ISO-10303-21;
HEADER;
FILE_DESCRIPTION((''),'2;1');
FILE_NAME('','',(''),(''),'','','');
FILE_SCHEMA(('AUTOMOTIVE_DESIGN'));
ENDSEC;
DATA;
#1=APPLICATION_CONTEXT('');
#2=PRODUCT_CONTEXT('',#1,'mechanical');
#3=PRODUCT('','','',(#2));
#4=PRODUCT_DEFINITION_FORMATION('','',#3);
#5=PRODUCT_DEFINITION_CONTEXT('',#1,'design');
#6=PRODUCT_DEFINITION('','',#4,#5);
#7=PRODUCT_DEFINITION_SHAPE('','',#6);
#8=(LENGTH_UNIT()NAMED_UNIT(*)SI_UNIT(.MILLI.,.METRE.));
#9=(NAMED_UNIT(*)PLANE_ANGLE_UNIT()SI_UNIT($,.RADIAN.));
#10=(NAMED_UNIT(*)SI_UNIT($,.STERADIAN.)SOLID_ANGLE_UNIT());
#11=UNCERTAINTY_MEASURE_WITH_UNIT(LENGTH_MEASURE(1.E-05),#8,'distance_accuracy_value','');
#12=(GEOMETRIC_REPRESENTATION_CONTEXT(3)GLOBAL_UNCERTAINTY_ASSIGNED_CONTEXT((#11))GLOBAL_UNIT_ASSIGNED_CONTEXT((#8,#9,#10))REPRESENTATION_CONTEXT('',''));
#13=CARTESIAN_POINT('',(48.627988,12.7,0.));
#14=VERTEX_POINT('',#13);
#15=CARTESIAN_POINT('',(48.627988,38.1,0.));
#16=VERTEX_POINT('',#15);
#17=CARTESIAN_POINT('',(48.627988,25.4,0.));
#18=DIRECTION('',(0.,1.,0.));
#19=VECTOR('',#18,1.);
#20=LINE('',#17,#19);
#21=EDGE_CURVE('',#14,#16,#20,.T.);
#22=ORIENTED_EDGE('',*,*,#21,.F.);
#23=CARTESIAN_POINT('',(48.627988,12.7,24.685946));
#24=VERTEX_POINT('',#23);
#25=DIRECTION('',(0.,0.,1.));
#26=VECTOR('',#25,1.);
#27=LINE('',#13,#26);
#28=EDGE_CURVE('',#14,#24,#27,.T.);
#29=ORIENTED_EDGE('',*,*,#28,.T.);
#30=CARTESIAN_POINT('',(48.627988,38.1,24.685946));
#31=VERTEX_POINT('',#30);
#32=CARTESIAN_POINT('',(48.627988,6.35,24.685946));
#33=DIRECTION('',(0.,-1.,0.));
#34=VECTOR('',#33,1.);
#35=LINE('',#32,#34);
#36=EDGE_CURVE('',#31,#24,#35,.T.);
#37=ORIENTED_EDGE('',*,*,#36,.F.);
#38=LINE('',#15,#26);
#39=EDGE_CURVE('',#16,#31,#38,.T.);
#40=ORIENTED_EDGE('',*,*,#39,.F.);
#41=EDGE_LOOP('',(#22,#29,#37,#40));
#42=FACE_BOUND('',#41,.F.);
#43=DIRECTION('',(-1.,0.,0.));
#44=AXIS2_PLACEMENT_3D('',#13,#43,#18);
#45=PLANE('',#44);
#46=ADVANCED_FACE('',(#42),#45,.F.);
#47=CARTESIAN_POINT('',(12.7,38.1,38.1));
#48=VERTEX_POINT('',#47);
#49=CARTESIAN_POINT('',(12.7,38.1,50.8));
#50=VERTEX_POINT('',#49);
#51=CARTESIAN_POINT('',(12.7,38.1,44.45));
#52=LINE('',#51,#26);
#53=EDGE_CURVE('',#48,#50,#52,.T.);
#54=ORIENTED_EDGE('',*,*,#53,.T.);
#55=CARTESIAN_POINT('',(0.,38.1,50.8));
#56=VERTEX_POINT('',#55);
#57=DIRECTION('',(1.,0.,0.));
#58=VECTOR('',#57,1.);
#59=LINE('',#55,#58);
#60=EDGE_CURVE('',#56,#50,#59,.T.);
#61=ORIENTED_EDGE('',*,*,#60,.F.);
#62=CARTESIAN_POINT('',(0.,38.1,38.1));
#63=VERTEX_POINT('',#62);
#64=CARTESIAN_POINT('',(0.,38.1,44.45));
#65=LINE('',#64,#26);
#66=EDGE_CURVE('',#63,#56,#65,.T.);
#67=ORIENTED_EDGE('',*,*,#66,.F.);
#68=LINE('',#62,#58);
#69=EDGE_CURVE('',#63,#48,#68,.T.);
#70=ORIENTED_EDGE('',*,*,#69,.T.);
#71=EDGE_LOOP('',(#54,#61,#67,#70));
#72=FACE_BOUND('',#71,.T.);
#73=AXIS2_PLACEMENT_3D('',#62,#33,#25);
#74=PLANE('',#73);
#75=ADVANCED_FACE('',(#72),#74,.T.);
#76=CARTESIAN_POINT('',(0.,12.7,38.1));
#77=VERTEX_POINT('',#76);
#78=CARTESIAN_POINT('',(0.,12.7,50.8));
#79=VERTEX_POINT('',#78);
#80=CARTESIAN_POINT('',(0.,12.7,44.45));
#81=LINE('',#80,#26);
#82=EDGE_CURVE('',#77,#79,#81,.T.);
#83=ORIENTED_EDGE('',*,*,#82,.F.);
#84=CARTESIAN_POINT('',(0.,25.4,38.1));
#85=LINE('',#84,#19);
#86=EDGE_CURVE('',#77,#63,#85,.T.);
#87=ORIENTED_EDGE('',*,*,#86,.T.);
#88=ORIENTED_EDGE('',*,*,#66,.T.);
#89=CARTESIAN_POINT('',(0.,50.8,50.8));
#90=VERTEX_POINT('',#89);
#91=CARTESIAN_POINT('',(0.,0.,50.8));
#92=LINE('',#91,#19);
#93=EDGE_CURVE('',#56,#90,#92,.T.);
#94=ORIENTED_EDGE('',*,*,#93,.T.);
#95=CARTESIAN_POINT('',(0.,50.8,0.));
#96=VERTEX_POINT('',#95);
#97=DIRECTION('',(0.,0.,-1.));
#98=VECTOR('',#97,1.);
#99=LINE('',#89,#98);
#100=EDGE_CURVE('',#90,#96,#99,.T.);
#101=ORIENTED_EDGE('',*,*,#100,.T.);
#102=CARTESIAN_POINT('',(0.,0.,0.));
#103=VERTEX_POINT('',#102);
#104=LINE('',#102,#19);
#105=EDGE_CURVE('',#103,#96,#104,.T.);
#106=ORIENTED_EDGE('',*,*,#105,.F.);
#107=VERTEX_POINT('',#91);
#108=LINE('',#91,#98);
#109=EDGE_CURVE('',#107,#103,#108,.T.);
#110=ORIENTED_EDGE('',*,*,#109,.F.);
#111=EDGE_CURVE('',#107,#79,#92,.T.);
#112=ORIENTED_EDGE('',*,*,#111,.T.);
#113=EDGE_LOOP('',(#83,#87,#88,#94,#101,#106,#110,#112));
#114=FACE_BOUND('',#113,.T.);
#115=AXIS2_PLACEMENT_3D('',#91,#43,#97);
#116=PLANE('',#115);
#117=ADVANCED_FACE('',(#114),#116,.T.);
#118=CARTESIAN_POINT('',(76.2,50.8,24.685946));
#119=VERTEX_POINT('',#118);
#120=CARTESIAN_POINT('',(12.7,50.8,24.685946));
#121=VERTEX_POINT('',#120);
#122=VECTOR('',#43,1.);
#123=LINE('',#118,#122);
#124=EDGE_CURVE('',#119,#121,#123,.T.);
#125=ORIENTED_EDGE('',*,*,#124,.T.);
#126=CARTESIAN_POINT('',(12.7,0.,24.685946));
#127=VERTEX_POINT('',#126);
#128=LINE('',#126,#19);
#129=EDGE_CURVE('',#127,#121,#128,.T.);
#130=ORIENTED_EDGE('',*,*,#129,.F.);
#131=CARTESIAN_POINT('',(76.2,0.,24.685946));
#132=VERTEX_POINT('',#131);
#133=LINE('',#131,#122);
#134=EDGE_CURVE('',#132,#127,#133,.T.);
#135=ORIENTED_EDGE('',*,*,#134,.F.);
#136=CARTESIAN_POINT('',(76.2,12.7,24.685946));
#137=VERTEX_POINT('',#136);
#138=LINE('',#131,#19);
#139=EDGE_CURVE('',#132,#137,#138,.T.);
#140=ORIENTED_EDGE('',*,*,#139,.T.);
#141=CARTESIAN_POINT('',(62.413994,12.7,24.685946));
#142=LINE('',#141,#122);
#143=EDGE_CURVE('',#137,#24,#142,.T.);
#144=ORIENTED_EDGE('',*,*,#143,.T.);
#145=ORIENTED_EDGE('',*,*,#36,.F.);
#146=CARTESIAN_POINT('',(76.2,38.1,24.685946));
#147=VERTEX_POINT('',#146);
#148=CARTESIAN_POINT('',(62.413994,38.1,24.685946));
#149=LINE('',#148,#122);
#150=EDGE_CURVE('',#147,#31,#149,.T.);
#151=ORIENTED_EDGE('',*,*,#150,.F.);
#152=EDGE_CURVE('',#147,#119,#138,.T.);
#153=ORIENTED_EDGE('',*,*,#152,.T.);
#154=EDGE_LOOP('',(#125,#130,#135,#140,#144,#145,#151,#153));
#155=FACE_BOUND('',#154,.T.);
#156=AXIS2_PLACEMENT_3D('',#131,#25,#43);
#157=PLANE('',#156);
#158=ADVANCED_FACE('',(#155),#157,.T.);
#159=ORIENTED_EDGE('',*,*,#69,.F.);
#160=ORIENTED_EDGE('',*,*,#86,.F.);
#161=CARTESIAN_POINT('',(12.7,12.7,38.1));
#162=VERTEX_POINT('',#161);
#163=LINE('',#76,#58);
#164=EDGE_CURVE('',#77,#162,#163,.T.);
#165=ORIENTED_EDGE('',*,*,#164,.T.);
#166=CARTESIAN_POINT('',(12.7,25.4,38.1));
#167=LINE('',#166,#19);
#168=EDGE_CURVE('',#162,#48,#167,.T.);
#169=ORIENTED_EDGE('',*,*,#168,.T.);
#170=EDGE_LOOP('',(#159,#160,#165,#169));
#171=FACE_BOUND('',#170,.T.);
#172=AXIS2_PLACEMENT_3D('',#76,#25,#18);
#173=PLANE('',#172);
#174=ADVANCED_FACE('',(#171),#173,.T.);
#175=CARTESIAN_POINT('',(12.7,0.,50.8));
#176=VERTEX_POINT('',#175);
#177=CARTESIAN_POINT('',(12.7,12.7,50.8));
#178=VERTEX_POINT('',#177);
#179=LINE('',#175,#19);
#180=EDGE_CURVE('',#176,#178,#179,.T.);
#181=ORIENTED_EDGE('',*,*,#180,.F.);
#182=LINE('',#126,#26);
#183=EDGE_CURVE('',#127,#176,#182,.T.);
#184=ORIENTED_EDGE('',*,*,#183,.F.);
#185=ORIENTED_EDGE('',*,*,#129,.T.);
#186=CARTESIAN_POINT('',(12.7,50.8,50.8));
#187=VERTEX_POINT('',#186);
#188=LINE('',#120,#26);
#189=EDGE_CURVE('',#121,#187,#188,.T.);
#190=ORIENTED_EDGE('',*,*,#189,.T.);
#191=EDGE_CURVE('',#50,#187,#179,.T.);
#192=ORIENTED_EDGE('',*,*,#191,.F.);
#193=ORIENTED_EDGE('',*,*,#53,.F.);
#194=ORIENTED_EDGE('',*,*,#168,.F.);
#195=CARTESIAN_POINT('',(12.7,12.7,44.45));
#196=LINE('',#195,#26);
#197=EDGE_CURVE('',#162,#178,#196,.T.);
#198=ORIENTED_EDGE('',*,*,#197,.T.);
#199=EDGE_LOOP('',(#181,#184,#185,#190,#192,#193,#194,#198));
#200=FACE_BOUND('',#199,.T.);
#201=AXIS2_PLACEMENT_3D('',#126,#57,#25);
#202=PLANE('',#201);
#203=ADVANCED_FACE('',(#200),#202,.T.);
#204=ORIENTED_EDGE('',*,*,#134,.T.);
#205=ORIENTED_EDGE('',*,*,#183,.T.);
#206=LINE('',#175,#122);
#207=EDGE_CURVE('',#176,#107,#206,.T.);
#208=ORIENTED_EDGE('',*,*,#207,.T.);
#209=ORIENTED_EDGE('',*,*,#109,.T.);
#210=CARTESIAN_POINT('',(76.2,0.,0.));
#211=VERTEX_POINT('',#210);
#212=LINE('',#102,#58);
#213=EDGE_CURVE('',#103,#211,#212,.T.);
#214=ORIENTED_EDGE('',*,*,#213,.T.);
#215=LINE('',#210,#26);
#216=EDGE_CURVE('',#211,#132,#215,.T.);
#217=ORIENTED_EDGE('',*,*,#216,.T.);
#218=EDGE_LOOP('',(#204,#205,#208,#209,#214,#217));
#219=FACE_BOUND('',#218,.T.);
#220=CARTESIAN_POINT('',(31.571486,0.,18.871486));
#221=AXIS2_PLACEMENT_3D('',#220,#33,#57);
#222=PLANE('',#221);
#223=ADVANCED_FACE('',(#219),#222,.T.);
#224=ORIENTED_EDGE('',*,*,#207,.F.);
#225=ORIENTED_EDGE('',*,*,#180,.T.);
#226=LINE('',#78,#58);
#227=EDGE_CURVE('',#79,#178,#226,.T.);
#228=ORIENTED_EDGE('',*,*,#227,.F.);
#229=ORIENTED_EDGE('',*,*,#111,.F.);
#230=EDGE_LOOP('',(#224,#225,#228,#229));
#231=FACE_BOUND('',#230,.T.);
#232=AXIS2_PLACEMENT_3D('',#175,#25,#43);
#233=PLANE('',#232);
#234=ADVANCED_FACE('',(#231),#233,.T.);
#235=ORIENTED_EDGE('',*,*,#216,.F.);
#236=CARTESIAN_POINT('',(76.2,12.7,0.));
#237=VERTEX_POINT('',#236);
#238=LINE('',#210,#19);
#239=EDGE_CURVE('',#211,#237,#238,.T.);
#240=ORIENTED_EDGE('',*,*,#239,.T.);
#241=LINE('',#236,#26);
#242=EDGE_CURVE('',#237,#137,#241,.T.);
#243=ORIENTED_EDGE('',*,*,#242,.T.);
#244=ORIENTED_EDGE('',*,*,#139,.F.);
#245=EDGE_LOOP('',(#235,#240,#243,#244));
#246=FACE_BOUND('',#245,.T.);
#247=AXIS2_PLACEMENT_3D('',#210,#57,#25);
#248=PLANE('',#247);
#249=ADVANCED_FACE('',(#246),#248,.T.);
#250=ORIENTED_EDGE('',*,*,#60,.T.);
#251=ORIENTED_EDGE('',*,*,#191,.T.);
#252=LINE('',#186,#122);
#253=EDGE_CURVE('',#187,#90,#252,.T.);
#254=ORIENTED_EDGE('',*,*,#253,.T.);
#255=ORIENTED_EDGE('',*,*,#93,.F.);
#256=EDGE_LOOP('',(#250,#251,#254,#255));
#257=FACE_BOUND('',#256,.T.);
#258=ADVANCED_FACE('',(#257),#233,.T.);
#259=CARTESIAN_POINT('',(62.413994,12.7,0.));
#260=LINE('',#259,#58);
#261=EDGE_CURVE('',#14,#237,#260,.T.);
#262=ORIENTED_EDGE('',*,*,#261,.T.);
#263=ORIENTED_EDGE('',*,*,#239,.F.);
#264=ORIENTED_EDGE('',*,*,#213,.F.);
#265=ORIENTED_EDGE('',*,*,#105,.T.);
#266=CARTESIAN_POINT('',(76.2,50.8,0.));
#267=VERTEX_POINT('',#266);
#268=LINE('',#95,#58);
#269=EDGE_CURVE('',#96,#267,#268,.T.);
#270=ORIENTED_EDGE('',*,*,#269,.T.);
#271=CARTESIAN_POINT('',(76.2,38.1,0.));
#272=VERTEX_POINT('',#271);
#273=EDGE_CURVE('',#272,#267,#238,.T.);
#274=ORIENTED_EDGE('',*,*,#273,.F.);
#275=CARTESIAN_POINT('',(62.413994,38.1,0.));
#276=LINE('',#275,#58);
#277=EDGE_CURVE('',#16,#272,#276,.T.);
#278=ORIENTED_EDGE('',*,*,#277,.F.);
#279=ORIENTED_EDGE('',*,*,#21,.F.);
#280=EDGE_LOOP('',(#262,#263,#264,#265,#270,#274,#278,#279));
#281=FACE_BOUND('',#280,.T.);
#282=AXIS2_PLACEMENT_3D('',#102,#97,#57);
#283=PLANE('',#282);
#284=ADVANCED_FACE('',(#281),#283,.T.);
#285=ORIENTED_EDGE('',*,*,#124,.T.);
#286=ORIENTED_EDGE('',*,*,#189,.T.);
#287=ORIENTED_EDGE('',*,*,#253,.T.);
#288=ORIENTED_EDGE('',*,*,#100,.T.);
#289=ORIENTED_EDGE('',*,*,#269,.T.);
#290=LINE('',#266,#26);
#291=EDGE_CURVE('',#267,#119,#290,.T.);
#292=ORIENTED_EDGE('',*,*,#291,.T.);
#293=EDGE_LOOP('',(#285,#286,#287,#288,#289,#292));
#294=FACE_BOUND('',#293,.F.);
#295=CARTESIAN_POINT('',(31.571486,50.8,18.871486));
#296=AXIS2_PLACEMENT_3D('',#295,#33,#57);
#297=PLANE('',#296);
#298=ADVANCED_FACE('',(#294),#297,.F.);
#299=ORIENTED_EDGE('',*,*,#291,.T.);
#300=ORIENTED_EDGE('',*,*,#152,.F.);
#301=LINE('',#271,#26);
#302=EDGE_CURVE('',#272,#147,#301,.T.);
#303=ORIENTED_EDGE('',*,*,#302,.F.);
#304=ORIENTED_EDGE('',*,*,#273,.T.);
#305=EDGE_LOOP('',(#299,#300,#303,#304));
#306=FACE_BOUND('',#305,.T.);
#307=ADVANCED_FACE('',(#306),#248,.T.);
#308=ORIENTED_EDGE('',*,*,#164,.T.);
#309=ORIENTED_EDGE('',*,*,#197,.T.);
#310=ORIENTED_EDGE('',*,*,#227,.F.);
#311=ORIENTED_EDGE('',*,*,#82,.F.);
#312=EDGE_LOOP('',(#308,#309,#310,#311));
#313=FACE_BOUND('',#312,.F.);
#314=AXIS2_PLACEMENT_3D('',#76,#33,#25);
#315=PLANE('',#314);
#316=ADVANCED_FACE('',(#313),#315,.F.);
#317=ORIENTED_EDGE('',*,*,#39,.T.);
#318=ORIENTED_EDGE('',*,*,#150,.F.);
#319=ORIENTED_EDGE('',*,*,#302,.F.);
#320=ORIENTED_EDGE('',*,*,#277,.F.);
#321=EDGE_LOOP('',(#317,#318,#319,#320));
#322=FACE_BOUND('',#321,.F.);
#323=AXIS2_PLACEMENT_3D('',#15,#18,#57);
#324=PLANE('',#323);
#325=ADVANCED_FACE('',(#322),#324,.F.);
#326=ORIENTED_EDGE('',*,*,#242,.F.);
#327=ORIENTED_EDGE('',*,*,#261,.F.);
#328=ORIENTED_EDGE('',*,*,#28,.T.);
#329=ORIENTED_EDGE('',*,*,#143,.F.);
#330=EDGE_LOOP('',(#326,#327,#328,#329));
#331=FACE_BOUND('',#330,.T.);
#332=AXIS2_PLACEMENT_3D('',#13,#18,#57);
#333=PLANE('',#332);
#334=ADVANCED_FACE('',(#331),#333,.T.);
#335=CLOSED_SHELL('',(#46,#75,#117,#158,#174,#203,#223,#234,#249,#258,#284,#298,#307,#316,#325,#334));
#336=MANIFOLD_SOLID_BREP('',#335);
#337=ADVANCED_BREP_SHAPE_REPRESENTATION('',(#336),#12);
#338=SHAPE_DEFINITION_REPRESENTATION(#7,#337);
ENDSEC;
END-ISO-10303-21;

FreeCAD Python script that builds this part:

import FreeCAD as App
import Part
import Sketcher
from FreeCAD import Vector
Q = App.Units.Quantity


def add_polygon(sketch, points):
    """Adds a closed chain of lines whose ends are joined by coincident constraints."""
    first, n = sketch.GeometryCount, len(points)
    for a, b in zip(points, points[1:] + points[:1]):
        sketch.addGeometry(Part.LineSegment(App.Vector(*a, 0), App.Vector(*b, 0)), False)
    for i in range(n):
        sketch.addConstraint(Sketcher.Constraint("Coincident", first + i, 2, first + (i + 1) % n, 1))

doc = App.newDocument("Part")
params = doc.addObject("Spreadsheet::Sheet", "Params")
for row, (alias, value) in enumerate([
    ("sketch1_width", "3 in"),
    ("sketch1_height", "2 in"),
    ("sketch1_width2", "2.5 in"),
    ("pad1_length", "2 in"),
    ("sketch2_height", "1 in"),
    ("pocket1_length", "1 in"),
    ("sketch3_width", "1 in"),
    ("sketch3_height", "0.5 in"),
    ("pocket2_length", "0.5 in"),
], start=1):
    params.set(f"A{row}", alias)
    params.set(f"B{row}", "=" + value)
    params.setAlias(f"B{row}", alias)

body = doc.addObject("PartDesign::Body", "Body")

# Sketch on XZ plane
sketch1 = body.newObject("Sketcher::SketchObject", "Sketch")
sketch1.AttachmentSupport = (doc.getObject("XZ_Plane"), [""])
sketch1.MapMode = "FlatFace"
add_polygon(sketch1, [(0, 51), (0, 0), (76, 0), (76, 25), (13, 25), (13, 51)])  # lines 0-5
sketch1.addConstraint(Sketcher.Constraint("Vertical", 0))
sketch1.addConstraint(Sketcher.Constraint("Horizontal", 1))
sketch1.addConstraint(Sketcher.Constraint("Vertical", 2))
sketch1.addConstraint(Sketcher.Constraint("Horizontal", 3))
sketch1.addConstraint(Sketcher.Constraint("Vertical", 4))
sketch1.addConstraint(Sketcher.Constraint("Horizontal", 5))
sketch1.addConstraint(Sketcher.Constraint("Coincident", 0, 2, -1, 1))
sketch1.addConstraint(Sketcher.Constraint("DistanceX", 1, 1, 1, 2, Q("3 in")))
sketch1.addConstraint(Sketcher.Constraint("DistanceY", 0, 2, 0, 1, Q("2 in")))
sketch1.addConstraint(Sketcher.Constraint("DistanceX", 3, 2, 3, 1, Q("2.5 in")))
sketch1.addConstraint(Sketcher.Constraint("DistanceY", 2, 1, 2, 2, Q("24.685946 mm")))
sketch1.setExpression("Constraints[13]", "Params.sketch1_width")
sketch1.setExpression("Constraints[14]", "Params.sketch1_height")
sketch1.setExpression("Constraints[15]", "Params.sketch1_width2")
pad1 = body.newObject("PartDesign::Pad", "Pad")
pad1.Profile = sketch1
pad1.setExpression("Length", "Params.pad1_length")
pad1.Reversed = True

# Sketch on XY plane
sketch2 = body.newObject("Sketcher::SketchObject", "Sketch001")
sketch2.AttachmentSupport = (doc.getObject("XY_Plane"), [""])
sketch2.MapMode = "FlatFace"
add_polygon(sketch2, [(49, 38), (49, 13), (76, 13), (76, 38)])  # lines 0-3
sketch2.addConstraint(Sketcher.Constraint("Vertical", 0))
sketch2.addConstraint(Sketcher.Constraint("Horizontal", 1))
sketch2.addConstraint(Sketcher.Constraint("Vertical", 2))
sketch2.addConstraint(Sketcher.Constraint("Horizontal", 3))
sketch2.addConstraint(Sketcher.Constraint("DistanceY", 0, 2, 0, 1, Q("1 in")))
sketch2.addConstraint(Sketcher.Constraint("DistanceX", -1, 1, 1, 2, Q("3 in")))
sketch2.addConstraint(Sketcher.Constraint("DistanceY", -1, 1, 0, 2, Q("0.5 in")))
sketch2.addConstraint(Sketcher.Constraint("DistanceX", 1, 1, 1, 2, Q("27.572012 mm")))
sketch2.setExpression("Constraints[8]", "Params.sketch2_height")
pocket1 = body.newObject("PartDesign::Pocket", "Pocket")
pocket1.Profile = sketch2
pocket1.setExpression("Length", "Params.pocket1_length")
pocket1.Reversed = True

# Sketch on YZ plane
sketch3 = body.newObject("Sketcher::SketchObject", "Sketch002")
sketch3.AttachmentSupport = (doc.getObject("YZ_Plane"), [""])
sketch3.MapMode = "FlatFace"
add_polygon(sketch3, [(13, 51), (13, 38), (38, 38), (38, 51)])  # lines 0-3
sketch3.addConstraint(Sketcher.Constraint("Vertical", 0))
sketch3.addConstraint(Sketcher.Constraint("Horizontal", 1))
sketch3.addConstraint(Sketcher.Constraint("Vertical", 2))
sketch3.addConstraint(Sketcher.Constraint("Horizontal", 3))
sketch3.addConstraint(Sketcher.Constraint("DistanceX", 1, 1, 1, 2, Q("1 in")))
sketch3.addConstraint(Sketcher.Constraint("DistanceY", 0, 2, 0, 1, Q("0.5 in")))
sketch3.addConstraint(Sketcher.Constraint("DistanceY", -1, 1, 2, 2, Q("2 in")))
sketch3.addConstraint(Sketcher.Constraint("DistanceX", -1, 1, 0, 2, Q("0.5 in")))
sketch3.setExpression("Constraints[8]", "Params.sketch3_width")
sketch3.setExpression("Constraints[9]", "Params.sketch3_height")
pocket2 = body.newObject("PartDesign::Pocket", "Pocket001")
pocket2.Profile = sketch3
pocket2.setExpression("Length", "Params.pocket2_length")
pocket2.Reversed = True

doc.recompute()
